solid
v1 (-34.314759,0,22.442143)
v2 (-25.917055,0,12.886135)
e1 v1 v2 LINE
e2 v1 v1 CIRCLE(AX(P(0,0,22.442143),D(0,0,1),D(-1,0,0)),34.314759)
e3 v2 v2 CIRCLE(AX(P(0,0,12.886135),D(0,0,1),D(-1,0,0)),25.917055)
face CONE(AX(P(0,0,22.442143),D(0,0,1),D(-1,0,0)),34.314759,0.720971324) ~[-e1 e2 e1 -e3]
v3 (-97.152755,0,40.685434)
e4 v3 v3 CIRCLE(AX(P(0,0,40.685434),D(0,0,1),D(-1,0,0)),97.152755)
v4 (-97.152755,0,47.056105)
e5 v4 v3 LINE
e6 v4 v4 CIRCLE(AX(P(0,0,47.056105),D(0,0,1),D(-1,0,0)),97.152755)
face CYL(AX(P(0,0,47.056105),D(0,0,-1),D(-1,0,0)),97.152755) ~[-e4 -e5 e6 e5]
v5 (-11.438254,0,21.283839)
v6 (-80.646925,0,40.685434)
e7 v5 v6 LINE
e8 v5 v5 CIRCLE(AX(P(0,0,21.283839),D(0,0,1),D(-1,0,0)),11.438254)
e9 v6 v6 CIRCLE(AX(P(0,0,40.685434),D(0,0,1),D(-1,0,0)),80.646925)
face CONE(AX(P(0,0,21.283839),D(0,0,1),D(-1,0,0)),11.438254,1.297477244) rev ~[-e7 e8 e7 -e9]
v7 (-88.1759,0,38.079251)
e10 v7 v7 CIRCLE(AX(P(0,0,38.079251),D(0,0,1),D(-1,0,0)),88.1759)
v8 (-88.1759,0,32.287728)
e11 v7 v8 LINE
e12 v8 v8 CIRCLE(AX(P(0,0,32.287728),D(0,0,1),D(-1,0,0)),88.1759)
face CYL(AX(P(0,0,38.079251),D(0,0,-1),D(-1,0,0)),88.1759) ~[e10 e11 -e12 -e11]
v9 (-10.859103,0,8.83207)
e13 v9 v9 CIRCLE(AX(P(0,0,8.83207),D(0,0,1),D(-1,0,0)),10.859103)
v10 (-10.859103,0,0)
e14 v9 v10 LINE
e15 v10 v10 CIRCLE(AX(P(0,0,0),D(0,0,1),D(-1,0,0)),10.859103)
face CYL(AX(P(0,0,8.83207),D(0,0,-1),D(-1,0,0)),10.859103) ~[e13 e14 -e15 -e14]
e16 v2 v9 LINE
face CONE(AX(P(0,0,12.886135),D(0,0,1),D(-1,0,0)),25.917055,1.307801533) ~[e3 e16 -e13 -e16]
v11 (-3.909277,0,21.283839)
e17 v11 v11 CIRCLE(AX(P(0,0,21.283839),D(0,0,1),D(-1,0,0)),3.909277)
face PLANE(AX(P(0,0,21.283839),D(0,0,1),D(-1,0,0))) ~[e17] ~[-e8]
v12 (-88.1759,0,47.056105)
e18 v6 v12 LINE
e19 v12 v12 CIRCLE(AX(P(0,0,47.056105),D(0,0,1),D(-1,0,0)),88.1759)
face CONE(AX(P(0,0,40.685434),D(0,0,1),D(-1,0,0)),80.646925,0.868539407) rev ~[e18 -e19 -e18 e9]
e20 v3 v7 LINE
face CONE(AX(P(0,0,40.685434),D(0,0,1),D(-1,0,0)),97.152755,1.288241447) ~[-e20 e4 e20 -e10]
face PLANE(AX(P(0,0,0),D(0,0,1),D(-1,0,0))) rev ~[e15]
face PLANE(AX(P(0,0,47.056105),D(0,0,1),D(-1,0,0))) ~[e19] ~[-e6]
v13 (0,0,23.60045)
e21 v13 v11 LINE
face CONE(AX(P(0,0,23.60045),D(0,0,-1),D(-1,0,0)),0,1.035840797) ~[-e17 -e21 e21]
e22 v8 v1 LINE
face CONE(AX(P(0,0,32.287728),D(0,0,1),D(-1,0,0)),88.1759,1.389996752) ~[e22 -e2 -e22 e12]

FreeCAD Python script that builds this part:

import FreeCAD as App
import Part
import Sketcher

V = App.Vector
Q = App.Units.Quantity


def add_polygon(sketch, points):
    """Adds a closed chain of lines whose ends are joined by coincident constraints."""
    first, n = sketch.GeometryCount, len(points)
    for a, b in zip(points, points[1:] + points[:1]):
        sketch.addGeometry(Part.LineSegment(App.Vector(*a, 0), App.Vector(*b, 0)), False)
    for i in range(n):
        sketch.addConstraint(Sketcher.Constraint("Coincident", first + i, 2, first + (i + 1) % n, 1))

doc = App.newDocument("Part")
body = doc.addObject("PartDesign::Body", "Body")

# Sketch on XZ plane
sketch1 = body.newObject("Sketcher::SketchObject", "Sketch")
sketch1.AttachmentSupport = (doc.getObject("XZ_Plane"), [""])
sketch1.MapMode = "FlatFace"
add_polygon(sketch1, [(-10.859103, 0), (0, 0), (0, 23.60045), (-3.909277, 21.283839), (-11.438254, 21.283839), (-80.646925, 40.685434), (-88.1759, 47.056105), (-97.152755, 47.056105), (-97.152755, 40.685434), (-88.1759, 38.079251), (-88.1759, 32.287728), (-34.314759, 22.442143), (-25.917055, 12.886135), (-10.859103, 8.83207)])  # lines 0-13
sketch1.addConstraint([
    Sketcher.Constraint("Horizontal", 0),
    Sketcher.Constraint("Vertical", 1),
    Sketcher.Constraint("Horizontal", 3),
    Sketcher.Constraint("Horizontal", 6),
    Sketcher.Constraint("Vertical", 7),
    Sketcher.Constraint("Vertical", 9),
    Sketcher.Constraint("Vertical", 13),
    Sketcher.Constraint("Coincident", 0, 2, -1, 1),
    Sketcher.Constraint("Horizontal", 4, 2, 7, 2),
    Sketcher.Constraint("Vertical", 5, 2, 8, 2),
    Sketcher.Constraint("Distance", 5, Q("9.862602 mm")),
    Sketcher.Constraint("DistanceY", 1, 1, 1, 2, Q("23.60045 mm")),
    Sketcher.Constraint("DistanceY", 7, 2, 7, 1, Q("6.370671 mm")),
    Sketcher.Constraint("DistanceY", 13, 2, 13, 1, Q("8.83207 mm")),
    Sketcher.Constraint("DistanceX", 5, 2, -1, 1, Q("88.1759 mm")),
    Sketcher.Constraint("DistanceX", 6, 2, 3, 2, Q("85.714501 mm")),
    Sketcher.Constraint("DistanceX", 11, 2, 3, 2, Q("14.478801 mm")),
    Sketcher.Constraint("Distance", 2, Q("4.544132 mm")),
    Sketcher.Constraint("Distance", 8, Q("9.347519 mm")),
    Sketcher.Constraint("DistanceX", 0, 1, 0, 2, Q("10.859103 mm")),
    Sketcher.Constraint("DistanceX", 3, 2, 3, 1, Q("7.528977 mm")),
    Sketcher.Constraint("DistanceX", 6, 2, 6, 1, Q("8.976855 mm")),
    Sketcher.Constraint("DistanceY", 9, 2, 9, 1, Q("5.791523 mm")),
    Sketcher.Constraint("DistanceY", -1, 1, 8, 2, Q("38.079251 mm")),
    Sketcher.Constraint("DistanceX", 10, 2, -1, 1, Q("34.314759 mm")),
    Sketcher.Constraint("DistanceY", 10, 2, 4, 2, Q("18.243291 mm")),
    Sketcher.Constraint("DistanceY", 11, 2, 10, 2, Q("9.556008 mm")),
])
revolution = body.newObject("PartDesign::Revolution", "Revolution")
revolution.Profile = sketch1
revolution.ReferenceAxis = (sketch1, ["V_Axis"])
revolution.Angle = 360

doc.recompute()
